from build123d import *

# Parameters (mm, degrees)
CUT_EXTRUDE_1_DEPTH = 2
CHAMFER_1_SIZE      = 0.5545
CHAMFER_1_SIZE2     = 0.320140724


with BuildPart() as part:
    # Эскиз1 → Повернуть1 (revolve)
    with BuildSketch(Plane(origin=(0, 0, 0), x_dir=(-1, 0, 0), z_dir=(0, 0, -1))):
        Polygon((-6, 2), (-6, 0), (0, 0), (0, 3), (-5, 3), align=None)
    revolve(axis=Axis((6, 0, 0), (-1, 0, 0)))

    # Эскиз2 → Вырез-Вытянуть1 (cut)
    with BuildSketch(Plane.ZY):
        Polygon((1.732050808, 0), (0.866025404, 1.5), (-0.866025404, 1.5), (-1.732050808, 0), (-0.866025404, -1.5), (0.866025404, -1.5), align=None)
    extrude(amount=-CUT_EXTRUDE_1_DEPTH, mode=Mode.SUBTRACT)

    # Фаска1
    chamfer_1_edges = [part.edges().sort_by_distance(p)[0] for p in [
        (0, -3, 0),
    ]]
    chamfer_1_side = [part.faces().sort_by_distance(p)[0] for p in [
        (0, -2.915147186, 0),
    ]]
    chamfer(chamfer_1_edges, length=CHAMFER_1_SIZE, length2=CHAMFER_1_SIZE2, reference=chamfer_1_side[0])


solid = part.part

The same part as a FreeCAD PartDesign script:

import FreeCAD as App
import Part
import Sketcher
Q = App.Units.Quantity


def edges_at(feature, points):
    """Names of the edges that pass closest to the given points."""
    edges = feature.Shape.Edges
    near = lambda p: min(range(len(edges)), key=lambda i: edges[i].distToShape(Part.Vertex(*p))[0])
    return sorted({f"Edge{near(p) + 1}" for p in points})


def add_polygon(sketch, points):
    """Adds a closed chain of lines whose ends are joined by coincident constraints."""
    first, n = sketch.GeometryCount, len(points)
    for a, b in zip(points, points[1:] + points[:1]):
        sketch.addGeometry(Part.LineSegment(App.Vector(*a, 0), App.Vector(*b, 0)), False)
    for i in range(n):
        sketch.addConstraint(Sketcher.Constraint("Coincident", first + i, 2, first + (i + 1) % n, 1))

doc = App.newDocument("Part")
body = doc.addObject("PartDesign::Body", "Body")

# Sketch on XY plane
sketch1 = body.newObject("Sketcher::SketchObject", "Sketch")
sketch1.AttachmentSupport = (doc.getObject("XY_Plane"), [""])
sketch1.MapMode = "FlatFace"
add_polygon(sketch1, [(6, 2), (6, 0), (0, 0), (0, 3), (5, 3)])  # lines 0-4
sketch1.addConstraint(Sketcher.Constraint("Vertical", 0))
sketch1.addConstraint(Sketcher.Constraint("Horizontal", 1))
sketch1.addConstraint(Sketcher.Constraint("Vertical", 2))
sketch1.addConstraint(Sketcher.Constraint("Horizontal", 3))
sketch1.addConstraint(Sketcher.Constraint("Coincident", 1, 2, -1, 1))
sketch1.addConstraint(Sketcher.Constraint("DistanceX", 1, 2, 1, 1, 6.0))
sketch1.addConstraint(Sketcher.Constraint("DistanceX", 3, 1, 3, 2, 5.0))
sketch1.addConstraint(Sketcher.Constraint("DistanceY", 0, 2, 0, 1, 2.0))
sketch1.addConstraint(Sketcher.Constraint("DistanceY", 2, 1, 2, 2, 3.0))
revolution = body.newObject("PartDesign::Revolution", "Revolution")
revolution.Profile = sketch1
revolution.ReferenceAxis = (sketch1, ["H_Axis"])
revolution.Angle = 360

# Sketch on YZ plane
sketch2 = body.newObject("Sketcher::SketchObject", "Sketch001")
sketch2.AttachmentSupport = (doc.getObject("YZ_Plane"), [""])
sketch2.MapMode = "FlatFace"
add_polygon(sketch2, [(0, 1.7), (1.5, 0.9), (1.5, -0.9), (0, -1.7), (-1.5, -0.9), (-1.5, 0.9)])  # lines 0-5
sketch2.addConstraint(Sketcher.Constraint("Vertical", 1))
sketch2.addConstraint(Sketcher.Constraint("Vertical", 4))
sketch2.addConstraint(Sketcher.Constraint("Symmetric", 0, 2, 3, 2, -1, 1))
sketch2.addConstraint(Sketcher.Constraint("Symmetric", 2, 2, 5, 2, -1, 1))
sketch2.addConstraint(Sketcher.Constraint("PointOnObject", 2, 2, -2))
sketch2.addConstraint(Sketcher.Constraint("Parallel", 2, 5))
sketch2.addConstraint(Sketcher.Constraint("Horizontal", 1, 2, 3, 2))
sketch2.addConstraint(Sketcher.Constraint("Angle", 0, Q("-30 deg")))
sketch2.addConstraint(Sketcher.Constraint("DistanceX", 3, 2, 1, 2, 3.0))
sketch2.addConstraint(Sketcher.Constraint("DistanceY", 1, 2, 1, 1, 1.732051))
pocket1 = body.newObject("PartDesign::Pocket", "Pocket")
pocket1.Profile = sketch2
pocket1.Length = 2
pocket1.Reversed = True
doc.recompute()

chamfer = body.newObject("PartDesign::Chamfer", "Chamfer")
chamfer.Base = (pocket1, edges_at(pocket1, [(0, -3, 0)]))
chamfer.ChamferType = "Two distances"
chamfer.Size = 0.5545
chamfer.Size2 = 0.320141
chamfer.FlipDirection = True

doc.recompute()
